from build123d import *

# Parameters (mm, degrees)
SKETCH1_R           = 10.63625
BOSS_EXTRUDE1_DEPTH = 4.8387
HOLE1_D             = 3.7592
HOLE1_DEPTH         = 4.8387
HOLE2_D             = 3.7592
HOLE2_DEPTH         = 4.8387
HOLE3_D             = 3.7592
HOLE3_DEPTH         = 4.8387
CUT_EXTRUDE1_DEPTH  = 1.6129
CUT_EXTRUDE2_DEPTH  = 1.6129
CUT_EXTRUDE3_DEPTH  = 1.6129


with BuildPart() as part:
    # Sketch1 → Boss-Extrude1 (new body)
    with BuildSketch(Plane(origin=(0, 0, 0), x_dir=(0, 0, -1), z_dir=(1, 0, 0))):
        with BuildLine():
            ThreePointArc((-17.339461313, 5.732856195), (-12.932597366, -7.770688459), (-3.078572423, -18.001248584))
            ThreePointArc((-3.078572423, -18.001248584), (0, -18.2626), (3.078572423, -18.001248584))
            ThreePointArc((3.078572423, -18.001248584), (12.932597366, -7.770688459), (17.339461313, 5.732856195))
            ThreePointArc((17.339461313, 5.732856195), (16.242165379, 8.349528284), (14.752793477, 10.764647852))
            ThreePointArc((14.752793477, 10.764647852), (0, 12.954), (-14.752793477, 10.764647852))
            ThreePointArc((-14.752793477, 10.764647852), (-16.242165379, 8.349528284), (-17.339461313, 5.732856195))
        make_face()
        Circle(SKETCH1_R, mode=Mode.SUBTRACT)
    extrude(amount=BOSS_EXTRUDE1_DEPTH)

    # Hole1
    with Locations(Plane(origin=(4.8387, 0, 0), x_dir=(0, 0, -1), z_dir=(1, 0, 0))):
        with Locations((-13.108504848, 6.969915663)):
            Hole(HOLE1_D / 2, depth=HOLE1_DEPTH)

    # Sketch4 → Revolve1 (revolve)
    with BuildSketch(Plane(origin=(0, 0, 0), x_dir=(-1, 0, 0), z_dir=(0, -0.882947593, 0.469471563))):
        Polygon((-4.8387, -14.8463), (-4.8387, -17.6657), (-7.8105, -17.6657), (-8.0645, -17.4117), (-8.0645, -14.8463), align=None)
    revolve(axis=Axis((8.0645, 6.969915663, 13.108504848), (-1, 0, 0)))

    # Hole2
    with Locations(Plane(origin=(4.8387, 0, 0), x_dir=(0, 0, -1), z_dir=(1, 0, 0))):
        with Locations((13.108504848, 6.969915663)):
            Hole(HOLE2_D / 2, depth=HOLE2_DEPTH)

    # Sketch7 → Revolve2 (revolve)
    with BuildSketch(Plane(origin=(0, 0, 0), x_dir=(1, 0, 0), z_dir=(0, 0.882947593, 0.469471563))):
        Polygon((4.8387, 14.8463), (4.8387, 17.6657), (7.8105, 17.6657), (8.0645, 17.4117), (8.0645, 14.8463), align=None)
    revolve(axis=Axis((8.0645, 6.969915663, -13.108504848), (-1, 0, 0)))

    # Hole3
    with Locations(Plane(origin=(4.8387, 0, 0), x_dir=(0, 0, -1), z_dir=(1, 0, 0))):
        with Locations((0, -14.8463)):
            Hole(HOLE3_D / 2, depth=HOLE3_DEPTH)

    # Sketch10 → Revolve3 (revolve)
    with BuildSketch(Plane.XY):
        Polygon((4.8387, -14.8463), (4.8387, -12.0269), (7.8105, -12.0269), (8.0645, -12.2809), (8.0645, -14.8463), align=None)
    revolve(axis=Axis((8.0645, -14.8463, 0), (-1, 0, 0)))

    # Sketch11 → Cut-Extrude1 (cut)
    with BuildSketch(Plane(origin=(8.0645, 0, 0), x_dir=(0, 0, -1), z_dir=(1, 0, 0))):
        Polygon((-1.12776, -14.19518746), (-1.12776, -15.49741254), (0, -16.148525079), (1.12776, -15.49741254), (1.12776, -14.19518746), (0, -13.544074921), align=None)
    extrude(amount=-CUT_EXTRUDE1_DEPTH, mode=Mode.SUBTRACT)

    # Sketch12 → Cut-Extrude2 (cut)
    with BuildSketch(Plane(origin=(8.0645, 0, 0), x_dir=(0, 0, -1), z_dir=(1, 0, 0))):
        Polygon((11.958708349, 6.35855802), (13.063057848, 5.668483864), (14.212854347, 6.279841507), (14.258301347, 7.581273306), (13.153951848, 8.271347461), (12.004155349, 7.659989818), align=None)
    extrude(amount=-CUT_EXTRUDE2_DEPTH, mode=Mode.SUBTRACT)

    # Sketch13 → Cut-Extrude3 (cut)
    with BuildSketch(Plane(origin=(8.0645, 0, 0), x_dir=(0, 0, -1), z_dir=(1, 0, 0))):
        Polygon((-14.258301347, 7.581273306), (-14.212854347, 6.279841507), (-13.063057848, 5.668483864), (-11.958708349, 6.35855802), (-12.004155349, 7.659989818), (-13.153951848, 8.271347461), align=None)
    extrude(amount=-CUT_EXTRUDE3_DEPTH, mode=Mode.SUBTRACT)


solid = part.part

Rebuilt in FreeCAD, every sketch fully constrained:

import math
import FreeCAD as App
import Part
import Sketcher
from FreeCAD import Vector
Q = App.Units.Quantity

doc = App.newDocument("Part")
params = doc.addObject("Spreadsheet::Sheet", "Params")
for row, (alias, value) in enumerate([
    ("sketch1_radius", "2 in"),
    ("sketch1_radius2", "1.25 in"),
    ("sketch1_radius3", "0.719 in"),
    ("pad1_length", "0.1905 in"),
    ("sketch2_diameter", "0.148 in"),
    ("hole_diameter", "0.148 in"),
    ("hole_depth", "0.1905 in"),
    ("sketch3_width", "0.127 in"),
    ("sketch3_width2", "0.117 in"),
    ("sketch3_height", "0.111 in"),
    ("revolution_angle", "360 deg"),
    ("sketch4_diameter", "0.148 in"),
    ("hole2_diameter", "0.148 in"),
    ("hole2_depth", "0.1905 in"),
    ("sketch5_width", "0.127 in"),
    ("sketch5_width2", "0.117 in"),
    ("sketch5_height", "0.111 in"),
    ("revolution2_angle", "360 deg"),
    ("sketch6_diameter", "0.148 in"),
    ("hole3_diameter", "0.148 in"),
    ("hole3_depth", "0.1905 in"),
    ("sketch7_width", "0.127 in"),
    ("sketch7_width2", "0.117 in"),
    ("sketch7_height", "0.111 in"),
    ("revolution3_angle", "360 deg"),
    ("pocket1_length", "0.0635 in"),
    ("pocket2_length", "0.0635 in"),
    ("pocket3_length", "0.0635 in"),
], start=1):
    params.set(f"A{row}", alias)
    params.set(f"B{row}", "=" + value)
    params.setAlias(f"B{row}", alias)

body = doc.addObject("PartDesign::Body", "Body")

# Sketch on YZ plane
sketch1 = body.newObject("Sketcher::SketchObject", "Sketch")
sketch1.AttachmentSupport = (doc.getObject("YZ_Plane"), [""])
sketch1.MapMode = "FlatFace"
sketch1.addGeometry([
    Part.ArcOfCircle(Part.Circle(Vector(9, -14, 0), Vector(0, 0, 1), 32), math.radians(95), math.radians(147)),  # 0
    Part.ArcOfCircle(Part.Circle(Vector(0, 0, 0), Vector(0, 0, 1), 18), math.radians(170.3), math.radians(189.7)),  # 1
    Part.ArcOfCircle(Part.Circle(Vector(9, 14, 0), Vector(0, 0, 1), 32), math.radians(-147), math.radians(-95)),  # 2
    Part.ArcOfCircle(Part.Circle(Vector(0, 0, 0), Vector(0, 0, 1), 18), math.radians(-71.7), math.radians(-53.88)),  # 3
    Part.ArcOfCircle(Part.Circle(Vector(-38, 0, 0), Vector(0, 0, 1), 51), math.radians(-17), math.radians(17)),  # 4
    Part.ArcOfCircle(Part.Circle(Vector(0, 0, 0), Vector(0, 0, 1), 18), math.radians(53.88), math.radians(71.7)),  # 5
    Part.Circle(Vector(0, 0, 0), Vector(0, 0, 1), 11),  # 6
], False)
sketch1.addConstraint([
    Sketcher.Constraint("Coincident", 0, 2, 1, 1),
    Sketcher.Constraint("Coincident", 1, 2, 2, 1),
    Sketcher.Constraint("Coincident", 2, 2, 3, 1),
    Sketcher.Constraint("Coincident", 3, 2, 4, 1),
    Sketcher.Constraint("Coincident", 4, 2, 5, 1),
    Sketcher.Constraint("Coincident", 5, 2, 0, 1),
    Sketcher.Constraint("Coincident", 1, 3, -1, 1),
    Sketcher.Constraint("Coincident", 3, 3, -1, 1),
    Sketcher.Constraint("Coincident", 5, 3, -1, 1),
    Sketcher.Constraint("Coincident", 6, 3, -1, 1),
    Sketcher.Constraint("Equal", 0, 2),
    Sketcher.Constraint("Equal", 1, 3),
    Sketcher.Constraint("Equal", 3, 5),
    Sketcher.Constraint("Symmetric", 0, 3, 2, 3, -1),
    Sketcher.Constraint("PointOnObject", 4, 3, -1),
    Sketcher.Constraint("Radius", 4, Q("2 in")),
    Sketcher.Constraint("Radius", 0, Q("1.25 in")),
    Sketcher.Constraint("Radius", 1, Q("0.719 in")),
    Sketcher.Constraint("Diameter", 6, Q("0.8375 in")),
    Sketcher.Constraint("DistanceX", 4, 3, -1, 1, Q("1.49 in")),
    Sketcher.Constraint("DistanceX", -1, 1, 0, 3, Q("8.58177 mm")),
    Sketcher.Constraint("DistanceX", 0, 2, -1, 1, Q("18.001249 mm")),
])
sketch1.setExpression("Constraints[15]", "Params.sketch1_radius")
sketch1.setExpression("Constraints[16]", "Params.sketch1_radius2")
sketch1.setExpression("Constraints[17]", "Params.sketch1_radius3")
pad1 = body.newObject("PartDesign::Pad", "Pad")
pad1.Profile = sketch1
pad1.setExpression("Length", "Params.pad1_length")

# Sketch on YZ plane
sketch2 = body.newObject("Sketcher::SketchObject", "Sketch001")
sketch2.AttachmentSupport = (doc.getObject("YZ_Plane"), [""])
sketch2.MapMode = "FlatFace"
sketch2.AttachmentOffset = App.Placement(Vector(0, 0, 0.1905 * 25.4), App.Rotation())
sketch2.addGeometry(Part.Circle(Vector(7, 13.1, 0), Vector(0, 0, 1), 1.9), False)
sketch2.addConstraint([
    Sketcher.Constraint("Diameter", 0, Q("0.148 in")),
    Sketcher.Constraint("DistanceX", -1, 1, 0, 3, Q("6.969916 mm")),
    Sketcher.Constraint("DistanceY", -1, 1, 0, 3, Q("13.108505 mm")),
])
sketch2.setExpression("Constraints[0]", "Params.sketch2_diameter")
doc.recompute()
hole = body.newObject("PartDesign::Hole", "Hole")
hole.Profile = sketch2
hole.ThreadType = "None"
hole.setExpression("Diameter", "Params.hole_diameter")
hole.DepthType = "Dimension"
hole.setExpression("Depth", "Params.hole_depth")
hole.DrillPoint = "Flat"

# Sketch on an angled plane
sketch3 = body.newObject("Sketcher::SketchObject", "Sketch002")
sketch3.Placement = App.Placement(Vector(0, 0, 0), App.Rotation(Vector(-1, 0, 0), Vector(0, -0.469471563, -0.882947593), Vector(0, -0.882947593, 0.469471563), "ZXY"))
sketch3.addGeometry([
    Part.LineSegment(Vector(-4.84, -17.67, 0), Vector(-4.84, -14.85, 0)),  # 0
    Part.LineSegment(Vector(-4.84, -14.85, 0), Vector(-8.06, -14.85, 0)),  # 1
    Part.LineSegment(Vector(-8.06, -14.85, 0), Vector(-8.06, -17.41, 0)),  # 2
    Part.LineSegment(Vector(-8.06, -17.41, 0), Vector(-7.81, -17.67, 0)),  # 3
    Part.LineSegment(Vector(-7.81, -17.67, 0), Vector(-4.84, -17.67, 0)),  # 4
], False)
sketch3.addGeometry(Part.LineSegment(Vector(-8.06, -14.85, 0), Vector(-4.84, -14.85, 0)), True)  # axis
sketch3.addConstraint([
    Sketcher.Constraint("Coincident", 0, 2, 1, 1),
    Sketcher.Constraint("Coincident", 1, 2, 2, 1),
    Sketcher.Constraint("Coincident", 2, 2, 3, 1),
    Sketcher.Constraint("Coincident", 3, 2, 4, 1),
    Sketcher.Constraint("Coincident", 4, 2, 0, 1),
    Sketcher.Constraint("Vertical", 0),
    Sketcher.Constraint("Horizontal", 1),
    Sketcher.Constraint("Vertical", 2),
    Sketcher.Constraint("Horizontal", 4),
    Sketcher.Constraint("Horizontal", 5),
    Sketcher.Constraint("Coincident", 5, 1, 1, 2),
    Sketcher.Constraint("Vertical", 4, 2, 5, 2),
    Sketcher.Constraint("Angle", 3, Q("-45 deg")),
    Sketcher.Constraint("DistanceX", 1, 2, 1, 1, Q("0.127 in")),
    Sketcher.Constraint("DistanceX", 4, 1, 4, 2, Q("0.117 in")),
    Sketcher.Constraint("DistanceY", 0, 1, 0, 2, Q("0.111 in")),
    Sketcher.Constraint("DistanceX", 0, 2, -1, 1, Q("0.1905 in")),
    Sketcher.Constraint("DistanceY", 0, 2, -1, 1, Q("0.5845 in")),
])
sketch3.setExpression("Constraints[13]", "Params.sketch3_width")
sketch3.setExpression("Constraints[14]", "Params.sketch3_width2")
sketch3.setExpression("Constraints[15]", "Params.sketch3_height")
revolution = body.newObject("PartDesign::Revolution", "Revolution")
revolution.Profile = sketch3
revolution.ReferenceAxis = (sketch3, ["Axis0"])
revolution.setExpression("Angle", "Params.revolution_angle")

# Sketch on YZ plane
sketch4 = body.newObject("Sketcher::SketchObject", "Sketch003")
sketch4.AttachmentSupport = (doc.getObject("YZ_Plane"), [""])
sketch4.MapMode = "FlatFace"
sketch4.AttachmentOffset = App.Placement(Vector(0, 0, 0.1905 * 25.4), App.Rotation())
sketch4.addGeometry(Part.Circle(Vector(7, -13.1, 0), Vector(0, 0, 1), 1.9), False)
sketch4.addConstraint([
    Sketcher.Constraint("Diameter", 0, Q("0.148 in")),
    Sketcher.Constraint("DistanceX", -1, 1, 0, 3, Q("6.969916 mm")),
    Sketcher.Constraint("DistanceY", 0, 3, -1, 1, Q("13.108505 mm")),
])
sketch4.setExpression("Constraints[0]", "Params.sketch4_diameter")
doc.recompute()
hole2 = body.newObject("PartDesign::Hole", "Hole001")
hole2.Profile = sketch4
hole2.ThreadType = "None"
hole2.setExpression("Diameter", "Params.hole2_diameter")
hole2.DepthType = "Dimension"
hole2.setExpression("Depth", "Params.hole2_depth")
hole2.DrillPoint = "Flat"

# Sketch on an angled plane
sketch5 = body.newObject("Sketcher::SketchObject", "Sketch004")
sketch5.Placement = App.Placement(Vector(0, 0, 0), App.Rotation(Vector(1, 0, 0), Vector(0, 0.469471563, -0.882947593), Vector(0, 0.882947593, 0.469471563), "ZXY"))
sketch5.addGeometry([
    Part.LineSegment(Vector(4.84, 17.67, 0), Vector(4.84, 14.85, 0)),  # 0
    Part.LineSegment(Vector(4.84, 14.85, 0), Vector(8.06, 14.85, 0)),  # 1
    Part.LineSegment(Vector(8.06, 14.85, 0), Vector(8.06, 17.41, 0)),  # 2
    Part.LineSegment(Vector(8.06, 17.41, 0), Vector(7.81, 17.67, 0)),  # 3
    Part.LineSegment(Vector(7.81, 17.67, 0), Vector(4.84, 17.67, 0)),  # 4
], False)
sketch5.addGeometry(Part.LineSegment(Vector(8.06, 14.85, 0), Vector(4.84, 14.85, 0)), True)  # axis
sketch5.addConstraint([
    Sketcher.Constraint("Coincident", 0, 2, 1, 1),
    Sketcher.Constraint("Coincident", 1, 2, 2, 1),
    Sketcher.Constraint("Coincident", 2, 2, 3, 1),
    Sketcher.Constraint("Coincident", 3, 2, 4, 1),
    Sketcher.Constraint("Coincident", 4, 2, 0, 1),
    Sketcher.Constraint("Vertical", 0),
    Sketcher.Constraint("Horizontal", 1),
    Sketcher.Constraint("Vertical", 2),
    Sketcher.Constraint("Horizontal", 4),
    Sketcher.Constraint("Horizontal", 5),
    Sketcher.Constraint("Coincident", 5, 1, 1, 2),
    Sketcher.Constraint("Vertical", 4, 2, 5, 2),
    Sketcher.Constraint("Angle", 3, Q("135 deg")),
    Sketcher.Constraint("DistanceX", 1, 1, 1, 2, Q("0.127 in")),
    Sketcher.Constraint("DistanceX", 4, 2, 4, 1, Q("0.117 in")),
    Sketcher.Constraint("DistanceY", 0, 2, 0, 1, Q("0.111 in")),
    Sketcher.Constraint("DistanceX", -1, 1, 0, 2, Q("0.1905 in")),
    Sketcher.Constraint("DistanceY", -1, 1, 0, 2, Q("0.5845 in")),
])
sketch5.setExpression("Constraints[13]", "Params.sketch5_width")
sketch5.setExpression("Constraints[14]", "Params.sketch5_width2")
sketch5.setExpression("Constraints[15]", "Params.sketch5_height")
revolution2 = body.newObject("PartDesign::Revolution", "Revolution001")
revolution2.Profile = sketch5
revolution2.ReferenceAxis = (sketch5, ["Axis0"])
revolution2.setExpression("Angle", "Params.revolution2_angle")

# Sketch on YZ plane
sketch6 = body.newObject("Sketcher::SketchObject", "Sketch005")
sketch6.AttachmentSupport = (doc.getObject("YZ_Plane"), [""])
sketch6.MapMode = "FlatFace"
sketch6.AttachmentOffset = App.Placement(Vector(0, 0, 0.1905 * 25.4), App.Rotation())
sketch6.addGeometry(Part.Circle(Vector(-14.8, 0, 0), Vector(0, 0, 1), 1.9), False)
sketch6.addConstraint([
    Sketcher.Constraint("PointOnObject", 0, 3, -1),
    Sketcher.Constraint("Diameter", 0, Q("0.148 in")),
    Sketcher.Constraint("DistanceX", 0, 3, -1, 1, Q("0.5845 in")),
])
sketch6.setExpression("Constraints[1]", "Params.sketch6_diameter")
doc.recompute()
hole3 = body.newObject("PartDesign::Hole", "Hole002")
hole3.Profile = sketch6
hole3.ThreadType = "None"
hole3.setExpression("Diameter", "Params.hole3_diameter")
hole3.DepthType = "Dimension"
hole3.setExpression("Depth", "Params.hole3_depth")
hole3.DrillPoint = "Flat"

# Sketch on XY plane
sketch7 = body.newObject("Sketcher::SketchObject", "Sketch006")
sketch7.AttachmentSupport = (doc.getObject("XY_Plane"), [""])
sketch7.MapMode = "FlatFace"
sketch7.addGeometry([
    Part.LineSegment(Vector(4.84, -12.03, 0), Vector(4.84, -14.85, 0)),  # 0
    Part.LineSegment(Vector(4.84, -14.85, 0), Vector(8.06, -14.85, 0)),  # 1
    Part.LineSegment(Vector(8.06, -14.85, 0), Vector(8.06, -12.28, 0)),  # 2
    Part.LineSegment(Vector(8.06, -12.28, 0), Vector(7.81, -12.03, 0)),  # 3
    Part.LineSegment(Vector(7.81, -12.03, 0), Vector(4.84, -12.03, 0)),  # 4
], False)
sketch7.addGeometry(Part.LineSegment(Vector(8.06, -14.85, 0), Vector(4.84, -14.85, 0)), True)  # axis
sketch7.addConstraint([
    Sketcher.Constraint("Coincident", 0, 2, 1, 1),
    Sketcher.Constraint("Coincident", 1, 2, 2, 1),
    Sketcher.Constraint("Coincident", 2, 2, 3, 1),
    Sketcher.Constraint("Coincident", 3, 2, 4, 1),
    Sketcher.Constraint("Coincident", 4, 2, 0, 1),
    Sketcher.Constraint("Vertical", 0),
    Sketcher.Constraint("Horizontal", 1),
    Sketcher.Constraint("Vertical", 2),
    Sketcher.Constraint("Horizontal", 4),
    Sketcher.Constraint("Horizontal", 5),
    Sketcher.Constraint("Coincident", 5, 1, 1, 2),
    Sketcher.Constraint("Vertical", 4, 2, 5, 2),
    Sketcher.Constraint("Angle", 3, Q("135 deg")),
    Sketcher.Constraint("DistanceX", 1, 1, 1, 2, Q("0.127 in")),
    Sketcher.Constraint("DistanceX", 4, 2, 4, 1, Q("0.117 in")),
    Sketcher.Constraint("DistanceY", 0, 2, 0, 1, Q("0.111 in")),
    Sketcher.Constraint("DistanceX", -1, 1, 0, 2, Q("0.1905 in")),
    Sketcher.Constraint("DistanceY", 0, 2, -1, 1, Q("0.5845 in")),
])
sketch7.setExpression("Constraints[13]", "Params.sketch7_width")
sketch7.setExpression("Constraints[14]", "Params.sketch7_width2")
sketch7.setExpression("Constraints[15]", "Params.sketch7_height")
revolution3 = body.newObject("PartDesign::Revolution", "Revolution002")
revolution3.Profile = sketch7
revolution3.ReferenceAxis = (sketch7, ["Axis0"])
revolution3.setExpression("Angle", "Params.revolution3_angle")

# Sketch on YZ plane
sketch8 = body.newObject("Sketcher::SketchObject", "Sketch007")
sketch8.AttachmentSupport = (doc.getObject("YZ_Plane"), [""])
sketch8.MapMode = "FlatFace"
sketch8.AttachmentOffset = App.Placement(Vector(0, 0, 0.3175 * 25.4), App.Rotation())
sketch8.addGeometry([
    Part.LineSegment(Vector(-14.2, 1.1, 0), Vector(-15.5, 1.1, 0)),  # 0
    Part.LineSegment(Vector(-15.5, 1.1, 0), Vector(-16.1, 0, 0)),  # 1
    Part.LineSegment(Vector(-16.1, 0, 0), Vector(-15.5, -1.1, 0)),  # 2
    Part.LineSegment(Vector(-15.5, -1.1, 0), Vector(-14.2, -1.1, 0)),  # 3
    Part.LineSegment(Vector(-14.2, -1.1, 0), Vector(-13.5, 0, 0)),  # 4
    Part.LineSegment(Vector(-13.5, 0, 0), Vector(-14.2, 1.1, 0)),  # 5
], False)
sketch8.addConstraint([
    Sketcher.Constraint("Coincident", 0, 2, 1, 1),
    Sketcher.Constraint("Coincident", 1, 2, 2, 1),
    Sketcher.Constraint("Coincident", 2, 2, 3, 1),
    Sketcher.Constraint("Coincident", 3, 2, 4, 1),
    Sketcher.Constraint("Coincident", 4, 2, 5, 1),
    Sketcher.Constraint("Coincident", 5, 2, 0, 1),
    Sketcher.Constraint("Horizontal", 0),
    Sketcher.Constraint("Horizontal", 3),
    Sketcher.Constraint("Symmetric", 0, 2, 2, 2, -1),
    Sketcher.Constraint("PointOnObject", 1, 2, -1),
    Sketcher.Constraint("PointOnObject", 4, 2, -1),
    Sketcher.Constraint("Parallel", 1, 4),
    Sketcher.Constraint("Parallel", 2, 5),
    Sketcher.Constraint("Angle", 1, Q("-120 deg")),
    Sketcher.Constraint("DistanceY", -1, 1, 0, 2, Q("0.0444 in")),
    Sketcher.Constraint("DistanceX", 0, 2, 0, 1, Q("1.302225 mm")),
    Sketcher.Constraint("DistanceX", 0, 2, -1, 1, Q("15.497413 mm")),
])
pocket1 = body.newObject("PartDesign::Pocket", "Pocket")
pocket1.Profile = sketch8
pocket1.setExpression("Length", "Params.pocket1_length")

# Sketch on YZ plane
sketch9 = body.newObject("Sketcher::SketchObject", "Sketch008")
sketch9.AttachmentSupport = (doc.getObject("YZ_Plane"), [""])
sketch9.MapMode = "FlatFace"
sketch9.AttachmentOffset = App.Placement(Vector(0, 0, 0.3175 * 25.4), App.Rotation())
sketch9.addGeometry([
    Part.LineSegment(Vector(6.4, -12, 0), Vector(5.7, -13.1, 0)),  # 0
    Part.LineSegment(Vector(5.7, -13.1, 0), Vector(6.3, -14.2, 0)),  # 1
    Part.LineSegment(Vector(6.3, -14.2, 0), Vector(7.6, -14.3, 0)),  # 2
    Part.LineSegment(Vector(7.6, -14.3, 0), Vector(8.3, -13.2, 0)),  # 3
    Part.LineSegment(Vector(8.3, -13.2, 0), Vector(7.7, -12, 0)),  # 4
    Part.LineSegment(Vector(7.7, -12, 0), Vector(6.4, -12, 0)),  # 5
], False)
sketch9.addConstraint([
    Sketcher.Constraint("Coincident", 0, 2, 1, 1),
    Sketcher.Constraint("Coincident", 1, 2, 2, 1),
    Sketcher.Constraint("Coincident", 2, 2, 3, 1),
    Sketcher.Constraint("Coincident", 3, 2, 4, 1),
    Sketcher.Constraint("Coincident", 4, 2, 5, 1),
    Sketcher.Constraint("Coincident", 5, 2, 0, 1),
    Sketcher.Constraint("Parallel", 0, 3),
    Sketcher.Constraint("Parallel", 1, 4),
    Sketcher.Constraint("Parallel", 2, 5),
    Sketcher.Constraint("Equal", 0, 1),
    Sketcher.Constraint("Equal", 1, 2),
    Sketcher.Constraint("Equal", 2, 3),
    Sketcher.Constraint("Angle", 0, Q("-122 deg")),
    Sketcher.Constraint("Angle", 1, Q("-62 deg")),
    Sketcher.Constraint("Angle", 2, Q("-2 deg")),
    Sketcher.Constraint("DistanceY", 2, 2, -1, 1, Q("14.258301 mm")),
    Sketcher.Constraint("DistanceY", 1, 2, 4, 2, Q("2.208699 mm")),
    Sketcher.Constraint("DistanceX", -1, 1, 1, 2, Q("6.279842 mm")),
])
pocket2 = body.newObject("PartDesign::Pocket", "Pocket001")
pocket2.Profile = sketch9
pocket2.setExpression("Length", "Params.pocket2_length")

# Sketch on YZ plane
sketch10 = body.newObject("Sketcher::SketchObject", "Sketch009")
sketch10.AttachmentSupport = (doc.getObject("YZ_Plane"), [""])
sketch10.MapMode = "FlatFace"
sketch10.AttachmentOffset = App.Placement(Vector(0, 0, 0.3175 * 25.4), App.Rotation())
sketch10.addGeometry([
    Part.LineSegment(Vector(7.6, 14.3, 0), Vector(6.3, 14.2, 0)),  # 0
    Part.LineSegment(Vector(6.3, 14.2, 0), Vector(5.7, 13.1, 0)),  # 1
    Part.LineSegment(Vector(5.7, 13.1, 0), Vector(6.4, 12, 0)),  # 2
    Part.LineSegment(Vector(6.4, 12, 0), Vector(7.7, 12, 0)),  # 3
    Part.LineSegment(Vector(7.7, 12, 0), Vector(8.3, 13.2, 0)),  # 4
    Part.LineSegment(Vector(8.3, 13.2, 0), Vector(7.6, 14.3, 0)),  # 5
], False)
sketch10.addConstraint([
    Sketcher.Constraint("Coincident", 0, 2, 1, 1),
    Sketcher.Constraint("Coincident", 1, 2, 2, 1),
    Sketcher.Constraint("Coincident", 2, 2, 3, 1),
    Sketcher.Constraint("Coincident", 3, 2, 4, 1),
    Sketcher.Constraint("Coincident", 4, 2, 5, 1),
    Sketcher.Constraint("Coincident", 5, 2, 0, 1),
    Sketcher.Constraint("Parallel", 0, 3),
    Sketcher.Constraint("Parallel", 1, 4),
    Sketcher.Constraint("Parallel", 2, 5),
    Sketcher.Constraint("Equal", 0, 1),
    Sketcher.Constraint("Equal", 1, 2),
    Sketcher.Constraint("Equal", 2, 3),
    Sketcher.Constraint("Angle", 0, Q("-178 deg")),
    Sketcher.Constraint("Angle", 1, Q("-118 deg")),
    Sketcher.Constraint("Angle", 2, Q("-58 deg")),
    Sketcher.Constraint("DistanceY", -1, 1, 5, 2, Q("14.258301 mm")),
    Sketcher.Constraint("DistanceY", 3, 2, 0, 2, Q("2.208699 mm")),
    Sketcher.Constraint("DistanceX", -1, 1, 0, 2, Q("6.279842 mm")),
])
pocket3 = body.newObject("PartDesign::Pocket", "Pocket002")
pocket3.Profile = sketch10
pocket3.setExpression("Length", "Params.pocket3_length")

doc.recompute()
